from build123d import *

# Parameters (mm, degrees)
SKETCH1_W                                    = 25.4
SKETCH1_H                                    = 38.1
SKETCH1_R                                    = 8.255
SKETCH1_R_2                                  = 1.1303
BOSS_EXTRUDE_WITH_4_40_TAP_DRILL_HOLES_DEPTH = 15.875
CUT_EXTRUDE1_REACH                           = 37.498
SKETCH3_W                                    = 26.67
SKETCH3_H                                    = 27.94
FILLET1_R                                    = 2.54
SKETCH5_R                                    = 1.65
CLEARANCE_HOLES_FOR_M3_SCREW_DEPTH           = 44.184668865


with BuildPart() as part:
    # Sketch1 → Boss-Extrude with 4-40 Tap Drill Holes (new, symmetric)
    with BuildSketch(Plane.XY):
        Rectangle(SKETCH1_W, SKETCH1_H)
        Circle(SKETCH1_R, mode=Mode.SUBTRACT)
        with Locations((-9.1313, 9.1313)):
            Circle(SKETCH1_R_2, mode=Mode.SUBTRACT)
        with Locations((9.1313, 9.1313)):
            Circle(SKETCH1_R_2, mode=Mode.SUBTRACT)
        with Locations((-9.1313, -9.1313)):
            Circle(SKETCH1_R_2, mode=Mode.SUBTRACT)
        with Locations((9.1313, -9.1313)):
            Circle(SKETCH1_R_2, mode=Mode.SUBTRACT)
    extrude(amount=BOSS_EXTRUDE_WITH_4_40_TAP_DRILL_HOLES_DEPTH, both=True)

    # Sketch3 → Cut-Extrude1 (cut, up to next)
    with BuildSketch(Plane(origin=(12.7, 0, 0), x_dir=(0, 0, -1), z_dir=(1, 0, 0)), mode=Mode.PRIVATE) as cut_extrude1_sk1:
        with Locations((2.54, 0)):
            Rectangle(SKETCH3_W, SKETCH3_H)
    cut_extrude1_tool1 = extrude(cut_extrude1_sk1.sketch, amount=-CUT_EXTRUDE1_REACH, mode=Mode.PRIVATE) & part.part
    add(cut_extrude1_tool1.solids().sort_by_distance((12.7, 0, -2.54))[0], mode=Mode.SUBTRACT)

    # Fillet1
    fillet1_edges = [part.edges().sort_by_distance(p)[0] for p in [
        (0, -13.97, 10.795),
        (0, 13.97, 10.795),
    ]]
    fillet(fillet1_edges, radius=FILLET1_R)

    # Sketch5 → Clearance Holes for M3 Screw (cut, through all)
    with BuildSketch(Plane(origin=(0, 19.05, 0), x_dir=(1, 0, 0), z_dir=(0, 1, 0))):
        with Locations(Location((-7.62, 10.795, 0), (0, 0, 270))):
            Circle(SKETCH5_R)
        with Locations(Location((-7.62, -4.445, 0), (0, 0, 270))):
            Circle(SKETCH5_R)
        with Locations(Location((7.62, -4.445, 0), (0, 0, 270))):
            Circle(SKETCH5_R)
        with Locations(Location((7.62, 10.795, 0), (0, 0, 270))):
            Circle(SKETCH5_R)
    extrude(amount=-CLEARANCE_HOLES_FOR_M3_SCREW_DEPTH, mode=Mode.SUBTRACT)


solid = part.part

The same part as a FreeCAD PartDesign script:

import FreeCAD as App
import Part
import Sketcher
from FreeCAD import Vector
Q = App.Units.Quantity


def edges_at(feature, points):
    """Names of the edges that pass closest to the given points."""
    edges = feature.Shape.Edges
    near = lambda p: min(range(len(edges)), key=lambda i: edges[i].distToShape(Part.Vertex(*p))[0])
    return sorted({f"Edge{near(p) + 1}" for p in points})


def add_polygon(sketch, points):
    """Adds a closed chain of lines whose ends are joined by coincident constraints."""
    first, n = sketch.GeometryCount, len(points)
    for a, b in zip(points, points[1:] + points[:1]):
        sketch.addGeometry(Part.LineSegment(App.Vector(*a, 0), App.Vector(*b, 0)), False)
    for i in range(n):
        sketch.addConstraint(Sketcher.Constraint("Coincident", first + i, 2, first + (i + 1) % n, 1))

doc = App.newDocument("Part")
body = doc.addObject("PartDesign::Body", "Body")

sketch1 = doc.addObject("Sketcher::SketchObject", "Sketch")
body.addObject(sketch1)
sketch1.AttachmentSupport = (doc.XY_Plane, [""])
sketch1.MapMode = "FlatFace"
add_polygon(sketch1, [(-12.7, 19.1), (-12.7, -19.1), (12.7, -19.1), (12.7, 19.1)])
sketch1.addGeometry(Part.Circle(Vector(-9.1, -9.1, 0), Vector(0, 0, 1), 1.1), False)
sketch1.addGeometry(Part.Circle(Vector(0, 0, 0), Vector(0, 0, 1), 8.3), False)
sketch1.addGeometry(Part.Circle(Vector(9.1, -9.1, 0), Vector(0, 0, 1), 1.1), False)
sketch1.addGeometry(Part.Circle(Vector(-9.1, 9.1, 0), Vector(0, 0, 1), 1.1), False)
sketch1.addGeometry(Part.Circle(Vector(9.1, 9.1, 0), Vector(0, 0, 1), 1.1), False)
sketch1.addConstraint([
    Sketcher.Constraint("Vertical", 0),
    Sketcher.Constraint("Horizontal", 1),
    Sketcher.Constraint("Vertical", 2),
    Sketcher.Constraint("Horizontal", 3),
    Sketcher.Constraint("Coincident", 5, 3, -1, 1),
    Sketcher.Constraint("Equal", 4, 6),
    Sketcher.Constraint("Equal", 6, 7),
    Sketcher.Constraint("Equal", 7, 8),
    Sketcher.Constraint("Symmetric", 6, 3, 7, 3, -1, 1),
    Sketcher.Constraint("Symmetric", 4, 3, 8, 3, -1, 1),
    Sketcher.Constraint("Symmetric", 0, 2, 2, 2, -1, 1),
    Sketcher.Constraint("Symmetric", 4, 3, 6, 3, -2),
    Sketcher.Constraint("Diameter", 5, Q("0.65 in")),
    Sketcher.Constraint("DistanceX", 1, 1, 1, 2, Q("1 in")),
    Sketcher.Constraint("Diameter", 4, Q("0.089 in")),
    Sketcher.Constraint("DistanceY", 0, 2, 0, 1, Q("1.5 in")),
    Sketcher.Constraint("DistanceX", 4, 3, 6, 3, Q("0.719 in")),
    Sketcher.Constraint("DistanceY", 4, 3, 7, 3, Q("0.719 in")),
])
pad1 = doc.addObject("PartDesign::Pad", "Pad")
body.addObject(pad1)
pad1.Profile = sketch1
pad1.Length = Q("1.25 in")
pad1.Midplane = True

sketch2 = doc.addObject("Sketcher::SketchObject", "Sketch001")
body.addObject(sketch2)
sketch2.AttachmentSupport = (doc.YZ_Plane, [""])
sketch2.MapMode = "FlatFace"
sketch2.AttachmentOffset = App.Placement(Vector(0, 0, 0.5 * 25.4), App.Rotation())
add_polygon(sketch2, [(14, 11), (-14, 11), (-14, -16), (14, -16)])
sketch2.addConstraint([
    Sketcher.Constraint("Horizontal", 0),
    Sketcher.Constraint("Vertical", 1),
    Sketcher.Constraint("Horizontal", 2),
    Sketcher.Constraint("Vertical", 3),
    Sketcher.Constraint("DistanceX", 0, 2, 0, 1, Q("1.1 in")),
    Sketcher.Constraint("DistanceY", 1, 2, 1, 1, Q("1.05 in")),
    Sketcher.Constraint("DistanceX", 0, 2, -1, 1, Q("0.55 in")),
    Sketcher.Constraint("DistanceY", -1, 1, 0, 2, Q("0.425 in")),
])
pocket1 = doc.addObject("PartDesign::Pocket", "Pocket")
body.addObject(pocket1)
pocket1.Profile = sketch2
pocket1.Length = Q("1 in")
doc.recompute()

fillet = doc.addObject("PartDesign::Fillet", "Fillet")
body.addObject(fillet)
fillet.Base = (pocket1, edges_at(pocket1, [(0, -13.97, 10.795), (0, 13.97, 10.795)]))
fillet.Radius = Q("0.1 in")

sketch3 = doc.addObject("Sketcher::SketchObject", "Sketch002")
body.addObject(sketch3)
sketch3.AttachmentSupport = (doc.XZ_Plane, [""])
sketch3.MapMode = "FlatFace"
sketch3.AttachmentOffset = App.Placement(Vector(0, 0, -0.75 * 25.4), App.Rotation())
sketch3.addGeometry([
    Part.Circle(Vector(-7.6, -10.8, 0), Vector(0, 0, 1), 1.6),
    Part.Circle(Vector(-7.6, 4.4, 0), Vector(0, 0, 1), 1.6),
    Part.Circle(Vector(7.6, 4.4, 0), Vector(0, 0, 1), 1.6),
    Part.Circle(Vector(7.6, -10.8, 0), Vector(0, 0, 1), 1.6),
], False)
sketch3.addConstraint([
    Sketcher.Constraint("Equal", 0, 1),
    Sketcher.Constraint("Equal", 1, 2),
    Sketcher.Constraint("Equal", 2, 3),
    Sketcher.Constraint("Symmetric", 1, 3, 2, 3, -2),
    Sketcher.Constraint("Symmetric", 0, 3, 3, 3, -2),
    Sketcher.Constraint("Vertical", 0, 3, 1, 3),
    Sketcher.Constraint("DistanceX", 0, 3, -1, 1, Q("0.3 in")),
    Sketcher.Constraint("DistanceY", 0, 3, 1, 3, Q("0.6 in")),
    Sketcher.Constraint("Diameter", 0, Q("3.3 mm")),
    Sketcher.Constraint("DistanceY", 0, 3, -1, 1, Q("0.425 in")),
])
pocket2 = doc.addObject("PartDesign::Pocket", "Pocket001")
body.addObject(pocket2)
pocket2.Profile = sketch3
pocket2.Type = "ThroughAll"
pocket2.Reversed = True

doc.recompute()
